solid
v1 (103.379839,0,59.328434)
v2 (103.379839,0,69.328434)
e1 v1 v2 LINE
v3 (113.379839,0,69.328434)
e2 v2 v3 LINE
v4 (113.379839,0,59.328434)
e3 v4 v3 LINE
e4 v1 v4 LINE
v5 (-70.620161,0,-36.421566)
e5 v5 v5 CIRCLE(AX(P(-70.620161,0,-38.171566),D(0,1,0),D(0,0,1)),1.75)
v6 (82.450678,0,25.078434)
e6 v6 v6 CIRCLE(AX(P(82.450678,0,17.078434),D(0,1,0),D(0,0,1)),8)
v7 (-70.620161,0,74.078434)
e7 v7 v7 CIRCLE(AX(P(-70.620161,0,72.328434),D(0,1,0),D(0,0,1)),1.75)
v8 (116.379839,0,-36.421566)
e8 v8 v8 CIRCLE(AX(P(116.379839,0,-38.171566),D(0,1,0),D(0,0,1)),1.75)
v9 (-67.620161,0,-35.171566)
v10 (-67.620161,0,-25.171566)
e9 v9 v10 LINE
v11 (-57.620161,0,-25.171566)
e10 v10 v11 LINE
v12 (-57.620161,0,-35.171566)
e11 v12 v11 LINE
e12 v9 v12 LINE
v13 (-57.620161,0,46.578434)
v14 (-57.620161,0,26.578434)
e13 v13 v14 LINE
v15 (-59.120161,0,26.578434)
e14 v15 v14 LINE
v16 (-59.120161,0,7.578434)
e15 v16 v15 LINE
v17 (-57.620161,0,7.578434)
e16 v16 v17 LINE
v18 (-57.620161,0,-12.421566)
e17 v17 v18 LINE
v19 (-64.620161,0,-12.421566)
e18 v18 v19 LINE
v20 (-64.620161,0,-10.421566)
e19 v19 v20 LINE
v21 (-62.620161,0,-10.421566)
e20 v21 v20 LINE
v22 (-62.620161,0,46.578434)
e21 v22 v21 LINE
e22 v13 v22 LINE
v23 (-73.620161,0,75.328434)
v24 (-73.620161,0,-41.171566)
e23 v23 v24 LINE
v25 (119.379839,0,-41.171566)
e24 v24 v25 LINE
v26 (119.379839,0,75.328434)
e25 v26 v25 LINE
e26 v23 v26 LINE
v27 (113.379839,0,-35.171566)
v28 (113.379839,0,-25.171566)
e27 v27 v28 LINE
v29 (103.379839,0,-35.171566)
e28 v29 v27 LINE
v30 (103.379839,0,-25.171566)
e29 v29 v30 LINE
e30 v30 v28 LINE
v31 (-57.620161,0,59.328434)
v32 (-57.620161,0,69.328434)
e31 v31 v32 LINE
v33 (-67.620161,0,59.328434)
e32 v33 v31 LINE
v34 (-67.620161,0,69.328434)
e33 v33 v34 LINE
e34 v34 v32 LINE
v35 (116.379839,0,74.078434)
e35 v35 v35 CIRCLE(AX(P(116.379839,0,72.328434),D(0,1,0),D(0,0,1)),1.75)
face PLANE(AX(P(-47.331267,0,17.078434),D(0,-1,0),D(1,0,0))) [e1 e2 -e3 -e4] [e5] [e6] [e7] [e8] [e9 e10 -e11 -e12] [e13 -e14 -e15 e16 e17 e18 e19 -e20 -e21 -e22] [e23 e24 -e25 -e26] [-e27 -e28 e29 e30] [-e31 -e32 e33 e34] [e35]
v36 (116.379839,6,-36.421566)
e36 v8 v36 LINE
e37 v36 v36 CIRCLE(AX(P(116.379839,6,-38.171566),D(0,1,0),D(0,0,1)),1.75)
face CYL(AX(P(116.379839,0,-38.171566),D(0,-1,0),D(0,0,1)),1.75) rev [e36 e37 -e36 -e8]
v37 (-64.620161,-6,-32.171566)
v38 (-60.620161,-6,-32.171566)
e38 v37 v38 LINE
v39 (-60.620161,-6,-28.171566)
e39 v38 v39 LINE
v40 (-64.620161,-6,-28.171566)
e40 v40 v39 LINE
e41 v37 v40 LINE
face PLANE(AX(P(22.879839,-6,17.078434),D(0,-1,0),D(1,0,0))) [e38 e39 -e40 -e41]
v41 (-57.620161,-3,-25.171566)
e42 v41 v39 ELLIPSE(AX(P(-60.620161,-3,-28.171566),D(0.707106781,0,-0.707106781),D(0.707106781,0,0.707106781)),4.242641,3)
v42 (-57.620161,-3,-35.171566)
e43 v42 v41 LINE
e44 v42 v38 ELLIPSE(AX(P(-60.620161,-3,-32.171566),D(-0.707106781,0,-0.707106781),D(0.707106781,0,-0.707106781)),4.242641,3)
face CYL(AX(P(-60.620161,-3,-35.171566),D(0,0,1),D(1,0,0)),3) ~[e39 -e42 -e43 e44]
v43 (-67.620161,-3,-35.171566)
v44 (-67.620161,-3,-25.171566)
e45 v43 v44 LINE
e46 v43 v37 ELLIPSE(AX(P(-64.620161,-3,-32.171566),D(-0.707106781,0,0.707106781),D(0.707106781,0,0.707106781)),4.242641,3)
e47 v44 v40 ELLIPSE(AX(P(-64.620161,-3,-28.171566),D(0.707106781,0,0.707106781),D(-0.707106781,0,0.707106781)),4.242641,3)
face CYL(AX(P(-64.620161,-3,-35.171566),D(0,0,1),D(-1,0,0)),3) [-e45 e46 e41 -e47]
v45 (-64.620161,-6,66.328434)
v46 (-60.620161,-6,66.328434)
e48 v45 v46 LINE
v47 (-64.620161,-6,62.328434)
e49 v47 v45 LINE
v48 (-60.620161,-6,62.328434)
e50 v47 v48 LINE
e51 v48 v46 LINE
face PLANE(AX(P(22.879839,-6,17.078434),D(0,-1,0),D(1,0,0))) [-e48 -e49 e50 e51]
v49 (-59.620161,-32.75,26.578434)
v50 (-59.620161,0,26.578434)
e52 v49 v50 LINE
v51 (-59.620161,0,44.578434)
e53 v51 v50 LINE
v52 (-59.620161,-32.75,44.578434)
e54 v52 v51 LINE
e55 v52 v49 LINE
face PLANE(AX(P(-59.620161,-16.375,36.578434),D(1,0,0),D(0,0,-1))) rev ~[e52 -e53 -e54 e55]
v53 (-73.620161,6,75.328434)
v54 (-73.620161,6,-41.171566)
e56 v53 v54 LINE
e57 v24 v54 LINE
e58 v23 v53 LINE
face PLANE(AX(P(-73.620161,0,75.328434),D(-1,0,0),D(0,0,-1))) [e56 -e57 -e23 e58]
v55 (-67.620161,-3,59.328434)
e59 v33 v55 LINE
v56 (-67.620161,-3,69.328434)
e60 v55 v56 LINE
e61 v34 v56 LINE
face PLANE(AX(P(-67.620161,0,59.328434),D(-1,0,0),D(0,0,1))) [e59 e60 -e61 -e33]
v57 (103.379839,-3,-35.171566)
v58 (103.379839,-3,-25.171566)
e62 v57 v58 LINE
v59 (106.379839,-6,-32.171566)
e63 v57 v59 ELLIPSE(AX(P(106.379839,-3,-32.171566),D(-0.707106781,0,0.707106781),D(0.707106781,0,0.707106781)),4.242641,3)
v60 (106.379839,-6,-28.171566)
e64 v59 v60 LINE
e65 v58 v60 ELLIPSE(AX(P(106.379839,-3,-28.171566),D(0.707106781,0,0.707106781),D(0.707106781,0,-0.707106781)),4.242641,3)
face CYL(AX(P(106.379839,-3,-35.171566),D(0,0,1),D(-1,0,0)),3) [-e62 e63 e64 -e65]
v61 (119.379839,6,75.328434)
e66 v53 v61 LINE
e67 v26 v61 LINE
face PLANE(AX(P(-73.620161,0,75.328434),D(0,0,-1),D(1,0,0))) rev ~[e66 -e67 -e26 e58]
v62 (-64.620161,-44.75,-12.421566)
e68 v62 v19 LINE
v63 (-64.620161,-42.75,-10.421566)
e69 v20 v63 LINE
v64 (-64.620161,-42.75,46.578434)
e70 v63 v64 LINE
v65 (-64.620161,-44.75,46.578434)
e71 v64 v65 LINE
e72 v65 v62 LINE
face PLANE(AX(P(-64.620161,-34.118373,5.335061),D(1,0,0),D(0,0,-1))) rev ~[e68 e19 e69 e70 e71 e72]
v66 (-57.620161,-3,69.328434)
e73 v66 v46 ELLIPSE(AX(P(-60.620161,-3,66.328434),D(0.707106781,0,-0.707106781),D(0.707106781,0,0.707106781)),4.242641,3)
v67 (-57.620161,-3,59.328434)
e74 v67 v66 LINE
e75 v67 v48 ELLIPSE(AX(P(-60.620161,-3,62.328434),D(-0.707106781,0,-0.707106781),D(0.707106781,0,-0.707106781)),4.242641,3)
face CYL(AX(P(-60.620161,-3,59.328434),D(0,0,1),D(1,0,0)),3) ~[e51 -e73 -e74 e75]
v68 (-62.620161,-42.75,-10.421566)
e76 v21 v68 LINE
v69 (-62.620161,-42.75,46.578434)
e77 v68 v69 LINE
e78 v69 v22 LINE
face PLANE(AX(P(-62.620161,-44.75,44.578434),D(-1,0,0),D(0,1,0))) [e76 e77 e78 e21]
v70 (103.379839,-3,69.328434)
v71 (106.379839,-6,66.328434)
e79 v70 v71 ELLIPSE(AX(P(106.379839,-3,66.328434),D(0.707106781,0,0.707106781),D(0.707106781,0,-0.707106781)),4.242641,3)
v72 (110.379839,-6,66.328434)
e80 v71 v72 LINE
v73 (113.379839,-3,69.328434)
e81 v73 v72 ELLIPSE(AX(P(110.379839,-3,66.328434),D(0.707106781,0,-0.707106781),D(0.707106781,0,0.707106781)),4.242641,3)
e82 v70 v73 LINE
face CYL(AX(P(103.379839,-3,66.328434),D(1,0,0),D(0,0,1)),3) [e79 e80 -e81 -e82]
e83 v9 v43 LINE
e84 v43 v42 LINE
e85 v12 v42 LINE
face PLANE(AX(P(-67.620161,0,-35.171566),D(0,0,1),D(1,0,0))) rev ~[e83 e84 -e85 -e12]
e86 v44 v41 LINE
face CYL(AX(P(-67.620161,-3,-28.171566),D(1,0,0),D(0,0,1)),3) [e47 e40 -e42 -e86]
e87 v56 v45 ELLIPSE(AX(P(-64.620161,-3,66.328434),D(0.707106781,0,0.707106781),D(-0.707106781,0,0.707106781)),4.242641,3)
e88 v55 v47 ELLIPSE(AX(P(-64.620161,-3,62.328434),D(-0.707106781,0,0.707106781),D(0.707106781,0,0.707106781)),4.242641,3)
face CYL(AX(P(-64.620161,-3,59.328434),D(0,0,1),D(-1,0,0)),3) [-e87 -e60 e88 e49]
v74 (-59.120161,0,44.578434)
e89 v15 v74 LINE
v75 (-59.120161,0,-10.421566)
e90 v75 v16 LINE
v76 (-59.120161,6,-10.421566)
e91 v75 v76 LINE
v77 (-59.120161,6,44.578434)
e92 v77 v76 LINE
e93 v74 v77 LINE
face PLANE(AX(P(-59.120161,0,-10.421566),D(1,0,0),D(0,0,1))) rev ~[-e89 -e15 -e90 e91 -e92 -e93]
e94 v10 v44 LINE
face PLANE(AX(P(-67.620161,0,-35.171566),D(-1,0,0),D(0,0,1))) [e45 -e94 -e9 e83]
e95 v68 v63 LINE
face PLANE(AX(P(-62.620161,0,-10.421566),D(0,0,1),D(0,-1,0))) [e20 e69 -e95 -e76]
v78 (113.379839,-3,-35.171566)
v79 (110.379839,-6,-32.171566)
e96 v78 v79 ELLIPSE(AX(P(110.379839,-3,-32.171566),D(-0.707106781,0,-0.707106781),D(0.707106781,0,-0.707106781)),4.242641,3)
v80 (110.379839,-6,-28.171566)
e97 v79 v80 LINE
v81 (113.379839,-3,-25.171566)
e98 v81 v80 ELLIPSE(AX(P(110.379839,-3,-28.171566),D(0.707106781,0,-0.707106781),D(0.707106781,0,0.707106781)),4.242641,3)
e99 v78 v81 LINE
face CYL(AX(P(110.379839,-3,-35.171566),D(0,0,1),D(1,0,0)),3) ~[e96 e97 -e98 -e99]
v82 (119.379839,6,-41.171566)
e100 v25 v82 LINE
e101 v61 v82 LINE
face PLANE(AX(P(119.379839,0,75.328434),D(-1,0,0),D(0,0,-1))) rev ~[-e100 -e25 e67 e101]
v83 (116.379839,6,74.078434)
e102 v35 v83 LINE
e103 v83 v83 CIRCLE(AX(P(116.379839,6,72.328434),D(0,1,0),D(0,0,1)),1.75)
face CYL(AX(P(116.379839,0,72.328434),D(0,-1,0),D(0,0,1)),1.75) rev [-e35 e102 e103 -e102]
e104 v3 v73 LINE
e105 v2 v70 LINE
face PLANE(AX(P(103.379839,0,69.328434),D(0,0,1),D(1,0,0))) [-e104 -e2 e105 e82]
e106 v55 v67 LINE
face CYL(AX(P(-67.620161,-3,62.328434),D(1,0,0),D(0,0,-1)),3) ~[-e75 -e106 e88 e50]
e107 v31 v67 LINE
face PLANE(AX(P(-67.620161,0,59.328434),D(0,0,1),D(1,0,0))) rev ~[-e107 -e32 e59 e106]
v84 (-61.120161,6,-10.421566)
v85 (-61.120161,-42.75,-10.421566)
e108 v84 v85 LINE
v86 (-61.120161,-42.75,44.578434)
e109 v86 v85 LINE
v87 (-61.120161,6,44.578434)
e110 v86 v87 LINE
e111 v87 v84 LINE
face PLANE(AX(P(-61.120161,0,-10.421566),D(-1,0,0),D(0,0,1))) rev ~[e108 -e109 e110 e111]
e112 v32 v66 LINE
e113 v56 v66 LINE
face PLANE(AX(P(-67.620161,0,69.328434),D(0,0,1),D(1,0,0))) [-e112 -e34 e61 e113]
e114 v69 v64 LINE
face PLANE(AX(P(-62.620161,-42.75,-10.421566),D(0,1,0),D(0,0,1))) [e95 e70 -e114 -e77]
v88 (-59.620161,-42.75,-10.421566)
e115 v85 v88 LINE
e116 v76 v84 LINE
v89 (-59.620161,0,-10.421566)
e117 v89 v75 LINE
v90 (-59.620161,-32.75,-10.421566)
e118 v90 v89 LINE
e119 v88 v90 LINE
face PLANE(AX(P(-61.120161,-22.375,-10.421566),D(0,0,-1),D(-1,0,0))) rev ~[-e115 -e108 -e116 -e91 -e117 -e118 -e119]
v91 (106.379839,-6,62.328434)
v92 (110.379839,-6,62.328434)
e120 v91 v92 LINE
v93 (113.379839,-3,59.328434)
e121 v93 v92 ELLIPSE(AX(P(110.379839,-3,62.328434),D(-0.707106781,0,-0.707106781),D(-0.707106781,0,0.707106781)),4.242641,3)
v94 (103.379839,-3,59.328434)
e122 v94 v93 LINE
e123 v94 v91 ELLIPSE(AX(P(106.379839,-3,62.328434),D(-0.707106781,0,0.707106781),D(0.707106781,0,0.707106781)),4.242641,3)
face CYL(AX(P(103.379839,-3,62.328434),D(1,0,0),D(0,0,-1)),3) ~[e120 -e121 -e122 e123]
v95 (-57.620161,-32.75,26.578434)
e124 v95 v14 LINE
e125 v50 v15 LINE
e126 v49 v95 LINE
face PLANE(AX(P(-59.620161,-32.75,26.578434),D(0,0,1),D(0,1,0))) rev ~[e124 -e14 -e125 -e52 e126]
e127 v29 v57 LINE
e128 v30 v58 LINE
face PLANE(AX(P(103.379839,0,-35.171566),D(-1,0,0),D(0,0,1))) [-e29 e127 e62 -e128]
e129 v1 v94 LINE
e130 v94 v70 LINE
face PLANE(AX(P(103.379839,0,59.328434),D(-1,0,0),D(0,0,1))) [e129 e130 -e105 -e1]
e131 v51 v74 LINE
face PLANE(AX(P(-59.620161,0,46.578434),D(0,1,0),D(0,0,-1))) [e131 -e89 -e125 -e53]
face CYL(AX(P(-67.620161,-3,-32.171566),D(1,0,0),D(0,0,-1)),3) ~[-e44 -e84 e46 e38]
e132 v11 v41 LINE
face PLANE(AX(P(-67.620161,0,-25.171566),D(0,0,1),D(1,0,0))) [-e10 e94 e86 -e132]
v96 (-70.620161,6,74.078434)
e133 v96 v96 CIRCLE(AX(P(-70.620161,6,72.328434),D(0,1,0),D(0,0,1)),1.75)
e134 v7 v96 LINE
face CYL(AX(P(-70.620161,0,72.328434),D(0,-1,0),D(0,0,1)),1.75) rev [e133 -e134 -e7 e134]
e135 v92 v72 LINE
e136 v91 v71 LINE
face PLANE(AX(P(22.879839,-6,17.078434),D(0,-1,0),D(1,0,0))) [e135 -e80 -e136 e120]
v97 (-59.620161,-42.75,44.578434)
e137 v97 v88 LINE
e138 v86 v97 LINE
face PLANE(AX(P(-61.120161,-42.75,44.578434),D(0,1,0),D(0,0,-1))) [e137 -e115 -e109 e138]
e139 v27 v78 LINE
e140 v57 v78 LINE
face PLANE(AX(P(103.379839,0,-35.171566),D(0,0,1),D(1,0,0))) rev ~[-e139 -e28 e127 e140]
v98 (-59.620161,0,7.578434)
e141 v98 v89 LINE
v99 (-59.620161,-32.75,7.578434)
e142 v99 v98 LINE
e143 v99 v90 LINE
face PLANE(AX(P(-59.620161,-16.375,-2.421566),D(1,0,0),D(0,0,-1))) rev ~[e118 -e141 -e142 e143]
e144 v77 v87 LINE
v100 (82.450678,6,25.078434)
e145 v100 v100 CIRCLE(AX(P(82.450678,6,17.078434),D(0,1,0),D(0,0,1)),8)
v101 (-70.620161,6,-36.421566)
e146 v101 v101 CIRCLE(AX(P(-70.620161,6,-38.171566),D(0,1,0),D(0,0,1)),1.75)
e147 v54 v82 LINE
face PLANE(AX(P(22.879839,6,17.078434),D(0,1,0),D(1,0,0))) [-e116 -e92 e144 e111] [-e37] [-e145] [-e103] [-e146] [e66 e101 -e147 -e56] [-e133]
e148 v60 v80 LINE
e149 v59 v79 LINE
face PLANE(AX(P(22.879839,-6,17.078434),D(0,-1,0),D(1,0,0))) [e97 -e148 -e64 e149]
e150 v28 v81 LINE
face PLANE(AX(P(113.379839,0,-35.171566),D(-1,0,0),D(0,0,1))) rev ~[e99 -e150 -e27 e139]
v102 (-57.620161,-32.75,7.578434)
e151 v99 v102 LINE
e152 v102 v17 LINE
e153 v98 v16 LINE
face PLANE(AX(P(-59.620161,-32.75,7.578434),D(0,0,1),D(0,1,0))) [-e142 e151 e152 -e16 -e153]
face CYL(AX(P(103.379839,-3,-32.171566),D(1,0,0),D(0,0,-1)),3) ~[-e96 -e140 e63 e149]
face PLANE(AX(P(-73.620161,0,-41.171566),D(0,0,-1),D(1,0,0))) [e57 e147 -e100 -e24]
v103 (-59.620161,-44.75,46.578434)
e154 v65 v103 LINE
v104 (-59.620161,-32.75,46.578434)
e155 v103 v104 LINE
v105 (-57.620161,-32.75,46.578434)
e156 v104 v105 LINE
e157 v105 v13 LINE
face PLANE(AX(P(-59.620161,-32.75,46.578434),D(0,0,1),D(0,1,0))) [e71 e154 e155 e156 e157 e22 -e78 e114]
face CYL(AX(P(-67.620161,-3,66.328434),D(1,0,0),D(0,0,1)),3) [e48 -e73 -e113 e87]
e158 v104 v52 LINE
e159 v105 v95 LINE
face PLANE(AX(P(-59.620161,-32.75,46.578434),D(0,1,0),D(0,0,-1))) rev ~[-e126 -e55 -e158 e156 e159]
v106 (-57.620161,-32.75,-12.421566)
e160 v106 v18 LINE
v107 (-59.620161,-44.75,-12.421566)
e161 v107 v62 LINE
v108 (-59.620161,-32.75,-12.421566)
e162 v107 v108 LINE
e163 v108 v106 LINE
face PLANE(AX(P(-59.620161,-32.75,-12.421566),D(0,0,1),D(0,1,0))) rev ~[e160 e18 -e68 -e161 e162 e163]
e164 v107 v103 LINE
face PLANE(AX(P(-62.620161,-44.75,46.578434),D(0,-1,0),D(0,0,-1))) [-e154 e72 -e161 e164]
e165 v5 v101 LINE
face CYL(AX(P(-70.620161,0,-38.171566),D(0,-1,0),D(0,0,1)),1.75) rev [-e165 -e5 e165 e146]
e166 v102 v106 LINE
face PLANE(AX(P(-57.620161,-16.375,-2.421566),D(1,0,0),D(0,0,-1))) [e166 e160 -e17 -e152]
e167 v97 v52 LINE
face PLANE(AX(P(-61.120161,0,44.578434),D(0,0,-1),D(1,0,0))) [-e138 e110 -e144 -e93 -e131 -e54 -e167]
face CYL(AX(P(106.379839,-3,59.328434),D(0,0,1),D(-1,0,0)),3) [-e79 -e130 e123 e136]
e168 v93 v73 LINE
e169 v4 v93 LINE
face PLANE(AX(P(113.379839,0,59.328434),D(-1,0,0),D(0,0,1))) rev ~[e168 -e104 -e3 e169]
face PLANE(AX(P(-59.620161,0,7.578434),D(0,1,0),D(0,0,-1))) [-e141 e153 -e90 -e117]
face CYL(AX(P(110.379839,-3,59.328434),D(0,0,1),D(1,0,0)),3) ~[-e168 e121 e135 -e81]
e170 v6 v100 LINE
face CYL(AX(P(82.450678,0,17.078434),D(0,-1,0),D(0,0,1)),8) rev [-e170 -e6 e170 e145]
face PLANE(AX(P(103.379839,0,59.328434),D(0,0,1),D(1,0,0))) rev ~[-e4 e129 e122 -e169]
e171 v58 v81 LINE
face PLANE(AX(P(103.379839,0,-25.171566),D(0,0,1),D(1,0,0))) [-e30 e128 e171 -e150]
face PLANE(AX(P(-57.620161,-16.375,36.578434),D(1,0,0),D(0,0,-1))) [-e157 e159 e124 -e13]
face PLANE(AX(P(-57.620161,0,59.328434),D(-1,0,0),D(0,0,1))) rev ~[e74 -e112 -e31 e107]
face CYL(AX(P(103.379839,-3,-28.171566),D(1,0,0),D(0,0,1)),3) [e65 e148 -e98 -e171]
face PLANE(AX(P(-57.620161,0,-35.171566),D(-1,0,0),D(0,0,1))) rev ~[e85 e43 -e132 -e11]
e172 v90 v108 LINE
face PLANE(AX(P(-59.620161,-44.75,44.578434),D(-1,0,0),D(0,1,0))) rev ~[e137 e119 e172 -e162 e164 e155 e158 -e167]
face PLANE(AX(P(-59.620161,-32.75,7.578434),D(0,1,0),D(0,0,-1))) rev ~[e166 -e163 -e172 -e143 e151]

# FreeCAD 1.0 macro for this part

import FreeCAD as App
import Part
import Sketcher
from FreeCAD import Vector


def edges_at(feature, points):
    """Names of the edges that pass closest to the given points."""
    edges = feature.Shape.Edges
    near = lambda p: min(range(len(edges)), key=lambda i: edges[i].distToShape(Part.Vertex(*p))[0])
    return sorted({f"Edge{near(p) + 1}" for p in points})

doc = App.newDocument("Part")
body = doc.addObject("PartDesign::Body", "Body")

# Sketch on XZ plane
sketch1 = body.newObject("Sketcher::SketchObject", "Sketch")
sketch1.AttachmentSupport = (doc.getObject("XZ_Plane"), [""])
sketch1.MapMode = "FlatFace"
sketch1.addGeometry(Part.LineSegment(Vector(-73.6, -41.2, 0), Vector(-73.6, 75.3, 0)), False)
sketch1.addGeometry(Part.LineSegment(Vector(-73.6, 75.3, 0), Vector(119.4, 75.3, 0)), False)
sketch1.addGeometry(Part.LineSegment(Vector(119.4, 75.3, 0), Vector(119.4, -41.2, 0)), False)
sketch1.addGeometry(Part.LineSegment(Vector(119.4, -41.2, 0), Vector(-73.6, -41.2, 0)), False)
sketch1.addGeometry(Part.Circle(Vector(-70.6, 72.3, 0), Vector(0, 0, 1), 1.8), False)
sketch1.addGeometry(Part.Circle(Vector(116.4, 72.3, 0), Vector(0, 0, 1), 1.8), False)
sketch1.addGeometry(Part.LineSegment(Vector(-46.3, 44.6, 0), Vector(-48.3, 44.6, 0)), False)
sketch1.addGeometry(Part.LineSegment(Vector(-48.3, 44.6, 0), Vector(-48.3, -10.4, 0)), False)
sketch1.addGeometry(Part.LineSegment(Vector(-48.3, -10.4, 0), Vector(-46.3, -10.4, 0)), False)
sketch1.addGeometry(Part.LineSegment(Vector(-46.3, -10.4, 0), Vector(-46.3, 44.6, 0)), False)
sketch1.addGeometry(Part.Circle(Vector(-70.6, -38.2, 0), Vector(0, 0, 1), 1.8), False)
sketch1.addGeometry(Part.Circle(Vector(82.5, 17.1, 0), Vector(0, 0, 1), 8), False)
sketch1.addGeometry(Part.Circle(Vector(116.4, -38.2, 0), Vector(0, 0, 1), 1.8), False)
sketch1.addConstraint(Sketcher.Constraint("Coincident", 0, 2, 1, 1))
sketch1.addConstraint(Sketcher.Constraint("Coincident", 1, 2, 2, 1))
sketch1.addConstraint(Sketcher.Constraint("Coincident", 2, 2, 3, 1))
sketch1.addConstraint(Sketcher.Constraint("Coincident", 3, 2, 0, 1))
sketch1.addConstraint(Sketcher.Constraint("Coincident", 6, 2, 7, 1))
sketch1.addConstraint(Sketcher.Constraint("Coincident", 7, 2, 8, 1))
sketch1.addConstraint(Sketcher.Constraint("Coincident", 8, 2, 9, 1))
sketch1.addConstraint(Sketcher.Constraint("Coincident", 9, 2, 6, 1))
sketch1.addConstraint(Sketcher.Constraint("Vertical", 0))
sketch1.addConstraint(Sketcher.Constraint("Horizontal", 1))
sketch1.addConstraint(Sketcher.Constraint("Vertical", 2))
sketch1.addConstraint(Sketcher.Constraint("Horizontal", 3))
sketch1.addConstraint(Sketcher.Constraint("Horizontal", 6))
sketch1.addConstraint(Sketcher.Constraint("Vertical", 7))
sketch1.addConstraint(Sketcher.Constraint("Horizontal", 8))
sketch1.addConstraint(Sketcher.Constraint("Vertical", 9))
sketch1.addConstraint(Sketcher.Constraint("Equal", 4, 5))
sketch1.addConstraint(Sketcher.Constraint("Equal", 5, 10))
sketch1.addConstraint(Sketcher.Constraint("Equal", 10, 12))
sketch1.addConstraint(Sketcher.Constraint("Horizontal", 4, 3, 5, 3))
sketch1.addConstraint(Sketcher.Constraint("Horizontal", 10, 3, 12, 3))
sketch1.addConstraint(Sketcher.Constraint("Vertical", 4, 3, 10, 3))
sketch1.addConstraint(Sketcher.Constraint("Vertical", 5, 3, 12, 3))
sketch1.addConstraint(Sketcher.Constraint("Diameter", 11, 16.0))
sketch1.addConstraint(Sketcher.Constraint("Diameter", 4, 3.5))
sketch1.addConstraint(Sketcher.Constraint("DistanceX", 1, 1, 1, 2, 193.0))
sketch1.addConstraint(Sketcher.Constraint("DistanceX", 6, 2, 6, 1, 2.0))
sketch1.addConstraint(Sketcher.Constraint("DistanceY", 7, 2, 7, 1, 55.0))
sketch1.addConstraint(Sketcher.Constraint("DistanceY", 0, 1, 0, 2, 116.5))
sketch1.addConstraint(Sketcher.Constraint("DistanceX", 4, 3, 5, 3, 187.0))
sketch1.addConstraint(Sketcher.Constraint("DistanceX", 0, 2, 4, 3, 3.0))
sketch1.addConstraint(Sketcher.Constraint("DistanceY", 4, 3, 0, 2, 3.0))
sketch1.addConstraint(Sketcher.Constraint("DistanceY", 2, 2, 12, 3, 3.0))
sketch1.addConstraint(Sketcher.Constraint("DistanceY", 11, 3, 6, 2, 27.5))
sketch1.addConstraint(Sketcher.Constraint("DistanceY", 11, 3, 5, 3, 55.25))
sketch1.addConstraint(Sketcher.Constraint("DistanceX", 4, 3, -1, 1, 70.620161))
sketch1.addConstraint(Sketcher.Constraint("DistanceX", -1, 1, 11, 3, 82.450678))
sketch1.addConstraint(Sketcher.Constraint("DistanceY", -1, 1, 4, 3, 72.328434))
sketch1.addConstraint(Sketcher.Constraint("DistanceX", 6, 2, -1, 1, 48.331267))
pad1 = body.newObject("PartDesign::Pad", "Pad")
pad1.Profile = sketch1
pad1.Length = 6
pad1.Reversed = True

# Sketch on XZ plane
sketch2 = body.newObject("Sketcher::SketchObject", "Sketch001")
sketch2.AttachmentSupport = (doc.getObject("XZ_Plane"), [""])
sketch2.MapMode = "FlatFace"
sketch2.addGeometry(Part.LineSegment(Vector(-68, 69, 0), Vector(-68, 59, 0)), False)
sketch2.addGeometry(Part.LineSegment(Vector(-68, 59, 0), Vector(-58, 59, 0)), False)
sketch2.addGeometry(Part.LineSegment(Vector(-58, 59, 0), Vector(-58, 69, 0)), False)
sketch2.addGeometry(Part.LineSegment(Vector(-58, 69, 0), Vector(-68, 69, 0)), False)
sketch2.addGeometry(Part.LineSegment(Vector(-68, -25, 0), Vector(-68, -35, 0)), False)
sketch2.addGeometry(Part.LineSegment(Vector(-68, -35, 0), Vector(-58, -35, 0)), False)
sketch2.addGeometry(Part.LineSegment(Vector(-58, -35, 0), Vector(-58, -25, 0)), False)
sketch2.addGeometry(Part.LineSegment(Vector(-58, -25, 0), Vector(-68, -25, 0)), False)
sketch2.addGeometry(Part.LineSegment(Vector(103, -25, 0), Vector(103, -35, 0)), False)
sketch2.addGeometry(Part.LineSegment(Vector(103, -35, 0), Vector(113, -35, 0)), False)
sketch2.addGeometry(Part.LineSegment(Vector(113, -35, 0), Vector(113, -25, 0)), False)
sketch2.addGeometry(Part.LineSegment(Vector(113, -25, 0), Vector(103, -25, 0)), False)
sketch2.addGeometry(Part.LineSegment(Vector(103, 69, 0), Vector(103, 59, 0)), False)
sketch2.addGeometry(Part.LineSegment(Vector(103, 59, 0), Vector(113, 59, 0)), False)
sketch2.addGeometry(Part.LineSegment(Vector(113, 59, 0), Vector(113, 69, 0)), False)
sketch2.addGeometry(Part.LineSegment(Vector(113, 69, 0), Vector(103, 69, 0)), False)
sketch2.addConstraint(Sketcher.Constraint("Coincident", 0, 2, 1, 1))
sketch2.addConstraint(Sketcher.Constraint("Coincident", 1, 2, 2, 1))
sketch2.addConstraint(Sketcher.Constraint("Coincident", 2, 2, 3, 1))
sketch2.addConstraint(Sketcher.Constraint("Coincident", 3, 2, 0, 1))
sketch2.addConstraint(Sketcher.Constraint("Coincident", 4, 2, 5, 1))
sketch2.addConstraint(Sketcher.Constraint("Coincident", 5, 2, 6, 1))
sketch2.addConstraint(Sketcher.Constraint("Coincident", 6, 2, 7, 1))
sketch2.addConstraint(Sketcher.Constraint("Coincident", 7, 2, 4, 1))
sketch2.addConstraint(Sketcher.Constraint("Coincident", 8, 2, 9, 1))
sketch2.addConstraint(Sketcher.Constraint("Coincident", 9, 2, 10, 1))
sketch2.addConstraint(Sketcher.Constraint("Coincident", 10, 2, 11, 1))
sketch2.addConstraint(Sketcher.Constraint("Coincident", 11, 2, 8, 1))
sketch2.addConstraint(Sketcher.Constraint("Coincident", 12, 2, 13, 1))
sketch2.addConstraint(Sketcher.Constraint("Coincident", 13, 2, 14, 1))
sketch2.addConstraint(Sketcher.Constraint("Coincident", 14, 2, 15, 1))
sketch2.addConstraint(Sketcher.Constraint("Coincident", 15, 2, 12, 1))
sketch2.addConstraint(Sketcher.Constraint("Vertical", 0))
sketch2.addConstraint(Sketcher.Constraint("Horizontal", 1))
sketch2.addConstraint(Sketcher.Constraint("Vertical", 2))
sketch2.addConstraint(Sketcher.Constraint("Horizontal", 3))
sketch2.addConstraint(Sketcher.Constraint("Vertical", 4))
sketch2.addConstraint(Sketcher.Constraint("Horizontal", 5))
sketch2.addConstraint(Sketcher.Constraint("Vertical", 6))
sketch2.addConstraint(Sketcher.Constraint("Horizontal", 7))
sketch2.addConstraint(Sketcher.Constraint("Vertical", 8))
sketch2.addConstraint(Sketcher.Constraint("Horizontal", 9))
sketch2.addConstraint(Sketcher.Constraint("Vertical", 10))
sketch2.addConstraint(Sketcher.Constraint("Horizontal", 11))
sketch2.addConstraint(Sketcher.Constraint("Vertical", 12))
sketch2.addConstraint(Sketcher.Constraint("Horizontal", 13))
sketch2.addConstraint(Sketcher.Constraint("Vertical", 14))
sketch2.addConstraint(Sketcher.Constraint("Horizontal", 15))
sketch2.addConstraint(Sketcher.Constraint("Horizontal", 5, 2, 8, 2))
sketch2.addConstraint(Sketcher.Constraint("Horizontal", 7, 2, 10, 2))
sketch2.addConstraint(Sketcher.Constraint("Horizontal", 1, 2, 12, 2))
sketch2.addConstraint(Sketcher.Constraint("Horizontal", 3, 2, 14, 2))
sketch2.addConstraint(Sketcher.Constraint("Vertical", 3, 2, 4, 2))
sketch2.addConstraint(Sketcher.Constraint("Vertical", 2, 2, 5, 2))
sketch2.addConstraint(Sketcher.Constraint("Vertical", 11, 2, 12, 2))
sketch2.addConstraint(Sketcher.Constraint("Vertical", 10, 2, 13, 2))
sketch2.addConstraint(Sketcher.Constraint("Equal", 7, 9))
sketch2.addConstraint(Sketcher.Constraint("Equal", 15, 0))
sketch2.addConstraint(Sketcher.Constraint("Equal", 2, 4))
sketch2.addConstraint(Sketcher.Constraint("DistanceX", 1, 1, 1, 2, 10.0))
sketch2.addConstraint(Sketcher.Constraint("DistanceX", 5, 2, 8, 2, 161.0))
sketch2.addConstraint(Sketcher.Constraint("DistanceY", 4, 2, 0, 2, 94.5))
sketch2.addConstraint(Sketcher.Constraint("DistanceX", 0, 2, -1, 1, 67.620161))
sketch2.addConstraint(Sketcher.Constraint("DistanceY", -1, 1, 0, 2, 59.328434))
pad2 = body.newObject("PartDesign::Pad", "Pad001")
pad2.Profile = sketch2
pad2.Length = 10

# Sketch on XZ plane
sketch3 = body.newObject("Sketcher::SketchObject", "Sketch002")
sketch3.AttachmentSupport = (doc.getObject("XZ_Plane"), [""])
sketch3.MapMode = "FlatFace"
sketch3.addGeometry(Part.LineSegment(Vector(-48.3, 44.6, 0), Vector(-48.3, -10.4, 0)), False)
sketch3.addGeometry(Part.LineSegment(Vector(-48.3, -10.4, 0), Vector(-46.3, -10.4, 0)), False)
sketch3.addGeometry(Part.LineSegment(Vector(-46.3, -10.4, 0), Vector(-46.3, 44.6, 0)), False)
sketch3.addGeometry(Part.LineSegment(Vector(-46.3, 44.6, 0), Vector(-48.3, 44.6, 0)), False)
sketch3.addConstraint(Sketcher.Constraint("Coincident", 0, 2, 1, 1))
sketch3.addConstraint(Sketcher.Constraint("Coincident", 1, 2, 2, 1))
sketch3.addConstraint(Sketcher.Constraint("Coincident", 2, 2, 3, 1))
sketch3.addConstraint(Sketcher.Constraint("Coincident", 3, 2, 0, 1))
sketch3.addConstraint(Sketcher.Constraint("Vertical", 0))
sketch3.addConstraint(Sketcher.Constraint("Horizontal", 1))
sketch3.addConstraint(Sketcher.Constraint("Vertical", 2))
sketch3.addConstraint(Sketcher.Constraint("Horizontal", 3))
sketch3.addConstraint(Sketcher.Constraint("DistanceX", 1, 1, 1, 2, 2.0))
sketch3.addConstraint(Sketcher.Constraint("DistanceY", 0, 2, 0, 1, 55.0))
sketch3.addConstraint(Sketcher.Constraint("DistanceX", 0, 2, -1, 1, 48.331267))
sketch3.addConstraint(Sketcher.Constraint("DistanceY", 0, 2, -1, 1, 10.421566))
pad3 = body.newObject("PartDesign::Pad", "Pad002")
pad3.Profile = sketch3
pad3.Length = 6
pad3.Reversed = True

# Sketch on XZ plane
sketch4 = body.newObject("Sketcher::SketchObject", "Sketch003")
sketch4.AttachmentSupport = (doc.getObject("XZ_Plane"), [""])
sketch4.MapMode = "FlatFace"
sketch4.AttachmentOffset = App.Placement(Vector(0, 0, 10), App.Rotation())
sketch4.addGeometry(Part.LineSegment(Vector(-68, 69, 0), Vector(-68, -35, 0)), False)
sketch4.addGeometry(Part.LineSegment(Vector(-68, -35, 0), Vector(113, -35, 0)), False)
sketch4.addGeometry(Part.LineSegment(Vector(113, -35, 0), Vector(113, 69, 0)), False)
sketch4.addGeometry(Part.LineSegment(Vector(113, 69, 0), Vector(-68, 69, 0)), False)
sketch4.addConstraint(Sketcher.Constraint("Coincident", 0, 2, 1, 1))
sketch4.addConstraint(Sketcher.Constraint("Coincident", 1, 2, 2, 1))
sketch4.addConstraint(Sketcher.Constraint("Coincident", 2, 2, 3, 1))
sketch4.addConstraint(Sketcher.Constraint("Coincident", 3, 2, 0, 1))
sketch4.addConstraint(Sketcher.Constraint("Vertical", 0))
sketch4.addConstraint(Sketcher.Constraint("Horizontal", 1))
sketch4.addConstraint(Sketcher.Constraint("Vertical", 2))
sketch4.addConstraint(Sketcher.Constraint("Horizontal", 3))
sketch4.addConstraint(Sketcher.Constraint("DistanceX", 1, 1, 1, 2, 181.0))
sketch4.addConstraint(Sketcher.Constraint("DistanceY", 0, 2, 0, 1, 104.5))
sketch4.addConstraint(Sketcher.Constraint("DistanceX", 0, 2, -1, 1, 67.620161))
sketch4.addConstraint(Sketcher.Constraint("DistanceY", 0, 2, -1, 1, 35.171566))
pocket1 = body.newObject("PartDesign::Pocket", "Pocket")
pocket1.Profile = sketch4
pocket1.Length = 4

# Sketch on XZ plane
sketch5 = body.newObject("Sketcher::SketchObject", "Sketch004")
sketch5.AttachmentSupport = (doc.getObject("XZ_Plane"), [""])
sketch5.MapMode = "FlatFace"
sketch5.addGeometry(Part.LineSegment(Vector(-62.6, 44.6, 0), Vector(-62.6, -10.4, 0)), False)
sketch5.addGeometry(Part.LineSegment(Vector(-62.6, -10.4, 0), Vector(-61.1, -10.4, 0)), False)
sketch5.addGeometry(Part.LineSegment(Vector(-61.1, -10.4, 0), Vector(-61.1, 44.6, 0)), False)
sketch5.addGeometry(Part.LineSegment(Vector(-61.1, 44.6, 0), Vector(-62.6, 44.6, 0)), False)
sketch5.addConstraint(Sketcher.Constraint("Coincident", 0, 2, 1, 1))
sketch5.addConstraint(Sketcher.Constraint("Coincident", 1, 2, 2, 1))
sketch5.addConstraint(Sketcher.Constraint("Coincident", 2, 2, 3, 1))
sketch5.addConstraint(Sketcher.Constraint("Coincident", 3, 2, 0, 1))
sketch5.addConstraint(Sketcher.Constraint("Vertical", 0))
sketch5.addConstraint(Sketcher.Constraint("Horizontal", 1))
sketch5.addConstraint(Sketcher.Constraint("Vertical", 2))
sketch5.addConstraint(Sketcher.Constraint("Horizontal", 3))
sketch5.addConstraint(Sketcher.Constraint("DistanceY", 0, 2, 0, 1, 55.0))
sketch5.addConstraint(Sketcher.Constraint("DistanceX", 1, 1, 1, 2, 1.5))
sketch5.addConstraint(Sketcher.Constraint("DistanceX", 0, 2, -1, 1, 62.620161))
sketch5.addConstraint(Sketcher.Constraint("DistanceY", 0, 2, -1, 1, 10.421566))
pad4 = body.newObject("PartDesign::Pad", "Pad003")
pad4.Profile = sketch5
pad4.Length = 44.75

# Sketch on XZ plane
sketch6 = body.newObject("Sketcher::SketchObject", "Sketch005")
sketch6.AttachmentSupport = (doc.getObject("XZ_Plane"), [""])
sketch6.MapMode = "FlatFace"
sketch6.addGeometry(Part.LineSegment(Vector(-61.1, 44.6, 0), Vector(-61.1, -10.4, 0)), False)
sketch6.addGeometry(Part.LineSegment(Vector(-61.1, -10.4, 0), Vector(-59.1, -10.4, 0)), False)
sketch6.addGeometry(Part.LineSegment(Vector(-59.1, -10.4, 0), Vector(-59.1, 44.6, 0)), False)
sketch6.addGeometry(Part.LineSegment(Vector(-59.1, 44.6, 0), Vector(-61.1, 44.6, 0)), False)
sketch6.addConstraint(Sketcher.Constraint("Coincident", 0, 2, 1, 1))
sketch6.addConstraint(Sketcher.Constraint("Coincident", 1, 2, 2, 1))
sketch6.addConstraint(Sketcher.Constraint("Coincident", 2, 2, 3, 1))
sketch6.addConstraint(Sketcher.Constraint("Coincident", 3, 2, 0, 1))
sketch6.addConstraint(Sketcher.Constraint("Vertical", 0))
sketch6.addConstraint(Sketcher.Constraint("Horizontal", 1))
sketch6.addConstraint(Sketcher.Constraint("Vertical", 2))
sketch6.addConstraint(Sketcher.Constraint("Horizontal", 3))
sketch6.addConstraint(Sketcher.Constraint("DistanceX", 1, 1, 1, 2, 2.0))
sketch6.addConstraint(Sketcher.Constraint("DistanceY", 0, 2, 0, 1, 55.0))
sketch6.addConstraint(Sketcher.Constraint("DistanceX", 0, 2, -1, 1, 61.120161))
sketch6.addConstraint(Sketcher.Constraint("DistanceY", 0, 2, -1, 1, 10.421566))
pocket2 = body.newObject("PartDesign::Pocket", "Pocket001")
pocket2.Profile = sketch6
pocket2.Length = 42.25
doc.recompute()

fillet = body.newObject("PartDesign::Fillet", "Fillet")
fillet.Base = (pocket2, edges_at(pocket2, [
    (-67.62, -6, 64.328),
    (-67.62, -6, -30.172),
    (-62.62, -6, -35.172),
    (108.38, -6, -35.172),
    (-62.62, -6, 69.328),
    (108.38, -6, 69.328),
    (113.38, -6, -30.172),
    (113.38, -6, 64.328),
    (-62.62, -6, 59.328),
    (-57.62, -6, 64.328),
    (103.38, -6, 64.328),
    (108.38, -6, 59.328),
    (108.38, -6, -25.172),
    (103.38, -6, -30.172),
    (-57.62, -6, -30.172),
    (-62.62, -6, -25.172),
]))
fillet.Radius = 3

# Sketch on YZ plane
sketch7 = body.newObject("Sketcher::SketchObject", "Sketch006")
sketch7.AttachmentSupport = (doc.getObject("YZ_Plane"), [""])
sketch7.MapMode = "FlatFace"
sketch7.AttachmentOffset = App.Placement(Vector(0, 0, -61.120161), App.Rotation())
sketch7.addGeometry(Part.LineSegment(Vector(-42.8, 44.6, 0), Vector(-44.8, 44.6, 0)), False)
sketch7.addGeometry(Part.LineSegment(Vector(-44.8, 44.6, 0), Vector(-44.8, -10.4, 0)), False)
sketch7.addGeometry(Part.LineSegment(Vector(-44.8, -10.4, 0), Vector(-42.8, -10.4, 0)), False)
sketch7.addGeometry(Part.LineSegment(Vector(-42.8, -10.4, 0), Vector(-42.8, 44.6, 0)), False)
sketch7.addConstraint(Sketcher.Constraint("Coincident", 0, 2, 1, 1))
sketch7.addConstraint(Sketcher.Constraint("Coincident", 1, 2, 2, 1))
sketch7.addConstraint(Sketcher.Constraint("Coincident", 2, 2, 3, 1))
sketch7.addConstraint(Sketcher.Constraint("Coincident", 3, 2, 0, 1))
sketch7.addConstraint(Sketcher.Constraint("Horizontal", 0))
sketch7.addConstraint(Sketcher.Constraint("Vertical", 1))
sketch7.addConstraint(Sketcher.Constraint("Horizontal", 2))
sketch7.addConstraint(Sketcher.Constraint("Vertical", 3))
sketch7.addConstraint(Sketcher.Constraint("DistanceX", 0, 2, 0, 1, 2.0))
sketch7.addConstraint(Sketcher.Constraint("DistanceY", 1, 2, 1, 1, 55.0))
sketch7.addConstraint(Sketcher.Constraint("DistanceX", 0, 2, -1, 1, 44.75))
sketch7.addConstraint(Sketcher.Constraint("DistanceY", -1, 1, 0, 2, 44.578434))
pad5 = body.newObject("PartDesign::Pad", "Pad004")
pad5.Profile = sketch7
pad5.Length = 1.5

# Sketch on XY plane
sketch8 = body.newObject("Sketcher::SketchObject", "Sketch007")
sketch8.AttachmentSupport = (doc.getObject("XY_Plane"), [""])
sketch8.MapMode = "FlatFace"
sketch8.AttachmentOffset = App.Placement(Vector(0, 0, -10.421566), App.Rotation())
sketch8.addGeometry(Part.LineSegment(Vector(-59.6, 0, 0), Vector(-59.6, -44.8, 0)), False)
sketch8.addGeometry(Part.LineSegment(Vector(-59.6, -44.8, 0), Vector(-62.6, -44.8, 0)), False)
sketch8.addGeometry(Part.LineSegment(Vector(-62.6, -44.8, 0), Vector(-62.6, 0, 0)), False)
sketch8.addGeometry(Part.LineSegment(Vector(-62.6, 0, 0), Vector(-59.6, 0, 0)), False)
sketch8.addConstraint(Sketcher.Constraint("Coincident", 0, 2, 1, 1))
sketch8.addConstraint(Sketcher.Constraint("Coincident", 1, 2, 2, 1))
sketch8.addConstraint(Sketcher.Constraint("Coincident", 2, 2, 3, 1))
sketch8.addConstraint(Sketcher.Constraint("Coincident", 3, 2, 0, 1))
sketch8.addConstraint(Sketcher.Constraint("Vertical", 0))
sketch8.addConstraint(Sketcher.Constraint("Horizontal", 1))
sketch8.addConstraint(Sketcher.Constraint("Vertical", 2))
sketch8.addConstraint(Sketcher.Constraint("Horizontal", 3))
sketch8.addConstraint(Sketcher.Constraint("PointOnObject", 2, 2, -1))
sketch8.addConstraint(Sketcher.Constraint("DistanceX", 1, 2, 1, 1, 3.0))
sketch8.addConstraint(Sketcher.Constraint("DistanceY", 0, 2, 0, 1, 44.75))
sketch8.addConstraint(Sketcher.Constraint("DistanceX", 0, 2, -1, 1, 59.620161))
pad6 = body.newObject("PartDesign::Pad", "Pad005")
pad6.Profile = sketch8
pad6.Length = 2
pad6.Reversed = True

# Sketch on XY plane
sketch9 = body.newObject("Sketcher::SketchObject", "Sketch008")
sketch9.AttachmentSupport = (doc.getObject("XY_Plane"), [""])
sketch9.MapMode = "FlatFace"
sketch9.AttachmentOffset = App.Placement(Vector(0, 0, 44.578434), App.Rotation())
sketch9.addGeometry(Part.LineSegment(Vector(-62.6, 0, 0), Vector(-62.6, -44.8, 0)), False)
sketch9.addGeometry(Part.LineSegment(Vector(-62.6, -44.8, 0), Vector(-59.6, -44.8, 0)), False)
sketch9.addGeometry(Part.LineSegment(Vector(-59.6, -44.8, 0), Vector(-59.6, 0, 0)), False)
sketch9.addGeometry(Part.LineSegment(Vector(-59.6, 0, 0), Vector(-62.6, 0, 0)), False)
sketch9.addConstraint(Sketcher.Constraint("Coincident", 0, 2, 1, 1))
sketch9.addConstraint(Sketcher.Constraint("Coincident", 1, 2, 2, 1))
sketch9.addConstraint(Sketcher.Constraint("Coincident", 2, 2, 3, 1))
sketch9.addConstraint(Sketcher.Constraint("Coincident", 3, 2, 0, 1))
sketch9.addConstraint(Sketcher.Constraint("Vertical", 0))
sketch9.addConstraint(Sketcher.Constraint("Horizontal", 1))
sketch9.addConstraint(Sketcher.Constraint("Vertical", 2))
sketch9.addConstraint(Sketcher.Constraint("Horizontal", 3))
sketch9.addConstraint(Sketcher.Constraint("PointOnObject", 2, 2, -1))
sketch9.addConstraint(Sketcher.Constraint("DistanceX", 1, 1, 1, 2, 3.0))
sketch9.addConstraint(Sketcher.Constraint("DistanceY", 0, 2, 0, 1, 44.75))
sketch9.addConstraint(Sketcher.Constraint("DistanceX", 0, 2, -1, 1, 62.620161))
pad7 = body.newObject("PartDesign::Pad", "Pad006")
pad7.Profile = sketch9
pad7.Length = 2

# Sketch on YZ plane
sketch10 = body.newObject("Sketcher::SketchObject", "Sketch009")
sketch10.AttachmentSupport = (doc.getObject("YZ_Plane"), [""])
sketch10.MapMode = "FlatFace"
sketch10.AttachmentOffset = App.Placement(Vector(0, 0, -62.620161), App.Rotation())
sketch10.addGeometry(Part.LineSegment(Vector(-42.8, -10.4, 0), Vector(0, -10.4, 0)), False)
sketch10.addGeometry(Part.LineSegment(Vector(0, -10.4, 0), Vector(0, -12.4, 0)), False)
sketch10.addGeometry(Part.LineSegment(Vector(0, -12.4, 0), Vector(-44.8, -12.4, 0)), False)
sketch10.addGeometry(Part.LineSegment(Vector(-44.8, -12.4, 0), Vector(-44.8, 46.6, 0)), False)
sketch10.addGeometry(Part.LineSegment(Vector(-44.8, 46.6, 0), Vector(-42.8, 46.6, 0)), False)
sketch10.addGeometry(Part.LineSegment(Vector(-42.8, 46.6, 0), Vector(-42.8, -10.4, 0)), False)
sketch10.addConstraint(Sketcher.Constraint("Coincident", 0, 2, 1, 1))
sketch10.addConstraint(Sketcher.Constraint("Coincident", 1, 2, 2, 1))
sketch10.addConstraint(Sketcher.Constraint("Coincident", 2, 2, 3, 1))
sketch10.addConstraint(Sketcher.Constraint("Coincident", 3, 2, 4, 1))
sketch10.addConstraint(Sketcher.Constraint("Coincident", 4, 2, 5, 1))
sketch10.addConstraint(Sketcher.Constraint("Coincident", 5, 2, 0, 1))
sketch10.addConstraint(Sketcher.Constraint("Horizontal", 0))
sketch10.addConstraint(Sketcher.Constraint("Vertical", 1))
sketch10.addConstraint(Sketcher.Constraint("Horizontal", 2))
sketch10.addConstraint(Sketcher.Constraint("Vertical", 3))
sketch10.addConstraint(Sketcher.Constraint("Horizontal", 4))
sketch10.addConstraint(Sketcher.Constraint("Vertical", 5))
sketch10.addConstraint(Sketcher.Constraint("PointOnObject", 0, 2, -2))
sketch10.addConstraint(Sketcher.Constraint("Equal", 4, 1))
sketch10.addConstraint(Sketcher.Constraint("DistanceX", 4, 1, 4, 2, 2.0))
sketch10.addConstraint(Sketcher.Constraint("DistanceY", 3, 1, 3, 2, 59.0))
sketch10.addConstraint(Sketcher.Constraint("DistanceX", 0, 1, 0, 2, 42.75))
sketch10.addConstraint(Sketcher.Constraint("DistanceY", 0, 2, -1, 1, 10.421566))
pad8 = body.newObject("PartDesign::Pad", "Pad007")
pad8.Profile = sketch10
pad8.Length = 2
pad8.Reversed = True

# Sketch on YZ plane
sketch11 = body.newObject("Sketcher::SketchObject", "Sketch010")
sketch11.AttachmentSupport = (doc.getObject("YZ_Plane"), [""])
sketch11.MapMode = "FlatFace"
sketch11.AttachmentOffset = App.Placement(Vector(0, 0, -59.620161), App.Rotation())
sketch11.addGeometry(Part.LineSegment(Vector(0, 47, 0), Vector(-33, 47, 0)), False)
sketch11.addGeometry(Part.LineSegment(Vector(-33, 47, 0), Vector(-33, 27, 0)), False)
sketch11.addGeometry(Part.LineSegment(Vector(-33, 27, 0), Vector(0, 27, 0)), False)
sketch11.addGeometry(Part.LineSegment(Vector(0, 27, 0), Vector(0, 47, 0)), False)
sketch11.addGeometry(Part.LineSegment(Vector(0, 8, 0), Vector(-33, 8, 0)), False)
sketch11.addGeometry(Part.LineSegment(Vector(-33, 8, 0), Vector(-33, -12, 0)), False)
sketch11.addGeometry(Part.LineSegment(Vector(-33, -12, 0), Vector(0, -12, 0)), False)
sketch11.addGeometry(Part.LineSegment(Vector(0, -12, 0), Vector(0, 8, 0)), False)
sketch11.addConstraint(Sketcher.Constraint("Coincident", 0, 2, 1, 1))
sketch11.addConstraint(Sketcher.Constraint("Coincident", 1, 2, 2, 1))
sketch11.addConstraint(Sketcher.Constraint("Coincident", 2, 2, 3, 1))
sketch11.addConstraint(Sketcher.Constraint("Coincident", 3, 2, 0, 1))
sketch11.addConstraint(Sketcher.Constraint("Coincident", 4, 2, 5, 1))
sketch11.addConstraint(Sketcher.Constraint("Coincident", 5, 2, 6, 1))
sketch11.addConstraint(Sketcher.Constraint("Coincident", 6, 2, 7, 1))
sketch11.addConstraint(Sketcher.Constraint("Coincident", 7, 2, 4, 1))
sketch11.addConstraint(Sketcher.Constraint("Horizontal", 0))
sketch11.addConstraint(Sketcher.Constraint("Vertical", 1))
sketch11.addConstraint(Sketcher.Constraint("Horizontal", 2))
sketch11.addConstraint(Sketcher.Constraint("Vertical", 3))
sketch11.addConstraint(Sketcher.Constraint("Horizontal", 4))
sketch11.addConstraint(Sketcher.Constraint("Vertical", 5))
sketch11.addConstraint(Sketcher.Constraint("Horizontal", 6))
sketch11.addConstraint(Sketcher.Constraint("Vertical", 7))
sketch11.addConstraint(Sketcher.Constraint("PointOnObject", 2, 2, -2))
sketch11.addConstraint(Sketcher.Constraint("PointOnObject", 6, 2, -2))
sketch11.addConstraint(Sketcher.Constraint("Vertical", 1, 2, 4, 2))
sketch11.addConstraint(Sketcher.Constraint("Equal", 3, 5))
sketch11.addConstraint(Sketcher.Constraint("DistanceY", 1, 2, 1, 1, 20.0))
sketch11.addConstraint(Sketcher.Constraint("DistanceY", 4, 2, 1, 2, 19.0))
sketch11.addConstraint(Sketcher.Constraint("DistanceX", 0, 2, 0, 1, 32.75))
sketch11.addConstraint(Sketcher.Constraint("DistanceY", -1, 1, 0, 2, 46.578434))
pad9 = body.newObject("PartDesign::Pad", "Pad008")
pad9.Profile = sketch11
pad9.Length = 2

doc.recompute()
